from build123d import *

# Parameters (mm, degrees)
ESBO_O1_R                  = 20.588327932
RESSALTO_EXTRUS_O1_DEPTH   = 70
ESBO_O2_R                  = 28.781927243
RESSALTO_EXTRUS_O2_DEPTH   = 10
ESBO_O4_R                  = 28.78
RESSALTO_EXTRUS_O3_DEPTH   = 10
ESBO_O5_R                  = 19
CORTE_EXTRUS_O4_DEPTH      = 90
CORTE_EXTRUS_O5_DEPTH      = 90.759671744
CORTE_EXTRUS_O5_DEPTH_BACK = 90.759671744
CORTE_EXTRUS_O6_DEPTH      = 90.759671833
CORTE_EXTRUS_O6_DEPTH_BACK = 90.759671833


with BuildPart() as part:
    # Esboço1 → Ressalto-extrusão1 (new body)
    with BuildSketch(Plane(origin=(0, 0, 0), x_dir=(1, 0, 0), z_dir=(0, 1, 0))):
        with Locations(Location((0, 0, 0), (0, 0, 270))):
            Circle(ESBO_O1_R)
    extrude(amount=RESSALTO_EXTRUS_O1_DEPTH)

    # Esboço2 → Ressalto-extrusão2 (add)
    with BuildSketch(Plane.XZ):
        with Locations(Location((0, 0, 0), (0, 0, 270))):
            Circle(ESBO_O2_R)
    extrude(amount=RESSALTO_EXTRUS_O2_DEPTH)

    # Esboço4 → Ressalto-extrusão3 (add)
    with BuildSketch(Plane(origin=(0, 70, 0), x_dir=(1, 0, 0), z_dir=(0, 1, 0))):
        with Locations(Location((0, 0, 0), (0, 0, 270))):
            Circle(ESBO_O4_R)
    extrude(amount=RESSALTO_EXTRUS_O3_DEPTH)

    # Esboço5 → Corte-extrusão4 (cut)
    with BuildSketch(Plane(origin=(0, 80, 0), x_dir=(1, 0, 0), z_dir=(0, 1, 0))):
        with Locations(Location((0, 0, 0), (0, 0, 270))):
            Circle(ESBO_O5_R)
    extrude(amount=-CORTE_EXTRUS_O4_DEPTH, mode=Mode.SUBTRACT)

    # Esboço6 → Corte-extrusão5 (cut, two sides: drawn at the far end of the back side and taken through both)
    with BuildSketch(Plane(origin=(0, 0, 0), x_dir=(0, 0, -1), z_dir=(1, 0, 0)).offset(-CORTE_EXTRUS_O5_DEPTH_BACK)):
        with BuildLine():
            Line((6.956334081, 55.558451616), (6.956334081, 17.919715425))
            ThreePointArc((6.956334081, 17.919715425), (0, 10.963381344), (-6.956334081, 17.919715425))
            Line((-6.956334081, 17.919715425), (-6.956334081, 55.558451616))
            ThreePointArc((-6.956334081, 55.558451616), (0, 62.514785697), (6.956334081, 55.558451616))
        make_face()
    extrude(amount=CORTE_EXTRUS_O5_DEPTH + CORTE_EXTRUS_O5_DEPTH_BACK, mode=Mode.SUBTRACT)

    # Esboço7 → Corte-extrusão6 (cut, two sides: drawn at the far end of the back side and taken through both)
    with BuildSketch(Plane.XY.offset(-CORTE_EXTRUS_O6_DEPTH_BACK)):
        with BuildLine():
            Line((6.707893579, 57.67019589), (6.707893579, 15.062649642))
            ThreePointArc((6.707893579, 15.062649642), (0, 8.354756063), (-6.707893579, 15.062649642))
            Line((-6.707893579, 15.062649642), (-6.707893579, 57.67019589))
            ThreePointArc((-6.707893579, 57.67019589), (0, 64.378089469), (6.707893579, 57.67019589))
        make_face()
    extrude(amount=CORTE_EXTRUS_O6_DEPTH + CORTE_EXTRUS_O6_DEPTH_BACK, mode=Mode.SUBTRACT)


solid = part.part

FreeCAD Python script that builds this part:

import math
import FreeCAD as App
import Part
import Sketcher
Q = App.Units.Quantity

doc = App.newDocument("Part")
body = doc.addObject("PartDesign::Body", "Body")

# Sketch on XZ plane
sketch1 = body.newObject("Sketcher::SketchObject", "Sketch")
sketch1.AttachmentSupport = (doc.getObject("XZ_Plane"), [""])
sketch1.MapMode = "FlatFace"
sketch1.addGeometry(Part.Circle(App.Vector(0, 0, 0), App.Vector(0, 0, 1), 21), False)
sketch1.addConstraint([
    Sketcher.Constraint("Coincident", 0, 3, -1, 1),
    Sketcher.Constraint("Diameter", 0, Q("41.176656 mm")),
])
pad1 = body.newObject("PartDesign::Pad", "Pad")
pad1.Profile = sketch1
pad1.Length = 70
pad1.Reversed = True

# Sketch on XZ plane
sketch2 = body.newObject("Sketcher::SketchObject", "Sketch001")
sketch2.AttachmentSupport = (doc.getObject("XZ_Plane"), [""])
sketch2.MapMode = "FlatFace"
sketch2.addGeometry(Part.Circle(App.Vector(0, 0, 0), App.Vector(0, 0, 1), 29), False)
sketch2.addConstraint([
    Sketcher.Constraint("Coincident", 0, 3, -1, 1),
    Sketcher.Constraint("Diameter", 0, Q("57.563854 mm")),
])
pad2 = body.newObject("PartDesign::Pad", "Pad001")
pad2.Profile = sketch2
pad2.Length = 10

# Sketch on XZ plane
sketch3 = body.newObject("Sketcher::SketchObject", "Sketch002")
sketch3.AttachmentSupport = (doc.getObject("XZ_Plane"), [""])
sketch3.MapMode = "FlatFace"
sketch3.AttachmentOffset = App.Placement(App.Vector(0, 0, -70), App.Rotation())
sketch3.addGeometry(Part.Circle(App.Vector(0, 0, 0), App.Vector(0, 0, 1), 29), False)
sketch3.addConstraint([
    Sketcher.Constraint("Coincident", 0, 3, -1, 1),
    Sketcher.Constraint("Diameter", 0, Q("57.56 mm")),
])
pad3 = body.newObject("PartDesign::Pad", "Pad002")
pad3.Profile = sketch3
pad3.Length = 10
pad3.Reversed = True

# Sketch on XZ plane
sketch4 = body.newObject("Sketcher::SketchObject", "Sketch003")
sketch4.AttachmentSupport = (doc.getObject("XZ_Plane"), [""])
sketch4.MapMode = "FlatFace"
sketch4.AttachmentOffset = App.Placement(App.Vector(0, 0, -80), App.Rotation())
sketch4.addGeometry(Part.Circle(App.Vector(0, 0, 0), App.Vector(0, 0, 1), 19), False)
sketch4.addConstraint([
    Sketcher.Constraint("Coincident", 0, 3, -1, 1),
    Sketcher.Constraint("Diameter", 0, Q("38 mm")),
])
pocket1 = body.newObject("PartDesign::Pocket", "Pocket")
pocket1.Profile = sketch4
pocket1.Length = 90
pocket1.Reversed = True

# Sketch on YZ plane
sketch5 = body.newObject("Sketcher::SketchObject", "Sketch004")
sketch5.AttachmentSupport = (doc.getObject("YZ_Plane"), [""])
sketch5.MapMode = "FlatFace"
sketch5.addGeometry([
    Part.LineSegment(App.Vector(18, -7, 0), App.Vector(56, -7, 0)),
    Part.ArcOfCircle(Part.Circle(App.Vector(56, 0, 0), App.Vector(0, 0, 1), 7), math.radians(-90), math.radians(90)),
    Part.LineSegment(App.Vector(56, 7, 0), App.Vector(18, 7, 0)),
    Part.ArcOfCircle(Part.Circle(App.Vector(18, 0, 0), App.Vector(0, 0, 1), 7), math.radians(90), math.radians(270)),
], False)
sketch5.addConstraint([
    Sketcher.Constraint("Tangent", 0, 2, 1, 1),
    Sketcher.Constraint("Tangent", 1, 2, 2, 1),
    Sketcher.Constraint("Tangent", 2, 2, 3, 1),
    Sketcher.Constraint("Tangent", 3, 2, 0, 1),
    Sketcher.Constraint("Horizontal", 0),
    Sketcher.Constraint("Horizontal", 2),
    Sketcher.Constraint("PointOnObject", 1, 3, -1),
    Sketcher.Constraint("Radius", 1, Q("6.956334 mm")),
    Sketcher.Constraint("DistanceX", 0, 1, 0, 2, Q("37.638736 mm")),
    Sketcher.Constraint("DistanceX", -1, 1, 1, 3, Q("55.558452 mm")),
])
pocket2 = body.newObject("PartDesign::Pocket", "Pocket001")
pocket2.Profile = sketch5
pocket2.Type = "ThroughAll"
pocket2.Midplane = True

# Sketch on XY plane
sketch6 = body.newObject("Sketcher::SketchObject", "Sketch005")
sketch6.AttachmentSupport = (doc.getObject("XY_Plane"), [""])
sketch6.MapMode = "FlatFace"
sketch6.addGeometry([
    Part.LineSegment(App.Vector(7, 15, 0), App.Vector(7, 58, 0)),
    Part.ArcOfCircle(Part.Circle(App.Vector(0, 58, 0), App.Vector(0, 0, 1), 7), math.radians(0), math.radians(180)),
    Part.LineSegment(App.Vector(-7, 58, 0), App.Vector(-7, 15, 0)),
    Part.ArcOfCircle(Part.Circle(App.Vector(0, 15, 0), App.Vector(0, 0, 1), 7), math.radians(180), math.radians(360)),
], False)
sketch6.addConstraint([
    Sketcher.Constraint("Tangent", 0, 2, 1, 1),
    Sketcher.Constraint("Tangent", 1, 2, 2, 1),
    Sketcher.Constraint("Tangent", 2, 2, 3, 1),
    Sketcher.Constraint("Tangent", 3, 2, 0, 1),
    Sketcher.Constraint("Vertical", 0),
    Sketcher.Constraint("Vertical", 2),
    Sketcher.Constraint("PointOnObject", 1, 3, -2),
    Sketcher.Constraint("Radius", 1, Q("6.707894 mm")),
    Sketcher.Constraint("DistanceY", 0, 1, 0, 2, Q("42.607546 mm")),
    Sketcher.Constraint("DistanceY", -1, 1, 3, 3, Q("15.06265 mm")),
])
pocket3 = body.newObject("PartDesign::Pocket", "Pocket002")
pocket3.Profile = sketch6
pocket3.Type = "ThroughAll"
pocket3.Midplane = True

doc.recompute()
